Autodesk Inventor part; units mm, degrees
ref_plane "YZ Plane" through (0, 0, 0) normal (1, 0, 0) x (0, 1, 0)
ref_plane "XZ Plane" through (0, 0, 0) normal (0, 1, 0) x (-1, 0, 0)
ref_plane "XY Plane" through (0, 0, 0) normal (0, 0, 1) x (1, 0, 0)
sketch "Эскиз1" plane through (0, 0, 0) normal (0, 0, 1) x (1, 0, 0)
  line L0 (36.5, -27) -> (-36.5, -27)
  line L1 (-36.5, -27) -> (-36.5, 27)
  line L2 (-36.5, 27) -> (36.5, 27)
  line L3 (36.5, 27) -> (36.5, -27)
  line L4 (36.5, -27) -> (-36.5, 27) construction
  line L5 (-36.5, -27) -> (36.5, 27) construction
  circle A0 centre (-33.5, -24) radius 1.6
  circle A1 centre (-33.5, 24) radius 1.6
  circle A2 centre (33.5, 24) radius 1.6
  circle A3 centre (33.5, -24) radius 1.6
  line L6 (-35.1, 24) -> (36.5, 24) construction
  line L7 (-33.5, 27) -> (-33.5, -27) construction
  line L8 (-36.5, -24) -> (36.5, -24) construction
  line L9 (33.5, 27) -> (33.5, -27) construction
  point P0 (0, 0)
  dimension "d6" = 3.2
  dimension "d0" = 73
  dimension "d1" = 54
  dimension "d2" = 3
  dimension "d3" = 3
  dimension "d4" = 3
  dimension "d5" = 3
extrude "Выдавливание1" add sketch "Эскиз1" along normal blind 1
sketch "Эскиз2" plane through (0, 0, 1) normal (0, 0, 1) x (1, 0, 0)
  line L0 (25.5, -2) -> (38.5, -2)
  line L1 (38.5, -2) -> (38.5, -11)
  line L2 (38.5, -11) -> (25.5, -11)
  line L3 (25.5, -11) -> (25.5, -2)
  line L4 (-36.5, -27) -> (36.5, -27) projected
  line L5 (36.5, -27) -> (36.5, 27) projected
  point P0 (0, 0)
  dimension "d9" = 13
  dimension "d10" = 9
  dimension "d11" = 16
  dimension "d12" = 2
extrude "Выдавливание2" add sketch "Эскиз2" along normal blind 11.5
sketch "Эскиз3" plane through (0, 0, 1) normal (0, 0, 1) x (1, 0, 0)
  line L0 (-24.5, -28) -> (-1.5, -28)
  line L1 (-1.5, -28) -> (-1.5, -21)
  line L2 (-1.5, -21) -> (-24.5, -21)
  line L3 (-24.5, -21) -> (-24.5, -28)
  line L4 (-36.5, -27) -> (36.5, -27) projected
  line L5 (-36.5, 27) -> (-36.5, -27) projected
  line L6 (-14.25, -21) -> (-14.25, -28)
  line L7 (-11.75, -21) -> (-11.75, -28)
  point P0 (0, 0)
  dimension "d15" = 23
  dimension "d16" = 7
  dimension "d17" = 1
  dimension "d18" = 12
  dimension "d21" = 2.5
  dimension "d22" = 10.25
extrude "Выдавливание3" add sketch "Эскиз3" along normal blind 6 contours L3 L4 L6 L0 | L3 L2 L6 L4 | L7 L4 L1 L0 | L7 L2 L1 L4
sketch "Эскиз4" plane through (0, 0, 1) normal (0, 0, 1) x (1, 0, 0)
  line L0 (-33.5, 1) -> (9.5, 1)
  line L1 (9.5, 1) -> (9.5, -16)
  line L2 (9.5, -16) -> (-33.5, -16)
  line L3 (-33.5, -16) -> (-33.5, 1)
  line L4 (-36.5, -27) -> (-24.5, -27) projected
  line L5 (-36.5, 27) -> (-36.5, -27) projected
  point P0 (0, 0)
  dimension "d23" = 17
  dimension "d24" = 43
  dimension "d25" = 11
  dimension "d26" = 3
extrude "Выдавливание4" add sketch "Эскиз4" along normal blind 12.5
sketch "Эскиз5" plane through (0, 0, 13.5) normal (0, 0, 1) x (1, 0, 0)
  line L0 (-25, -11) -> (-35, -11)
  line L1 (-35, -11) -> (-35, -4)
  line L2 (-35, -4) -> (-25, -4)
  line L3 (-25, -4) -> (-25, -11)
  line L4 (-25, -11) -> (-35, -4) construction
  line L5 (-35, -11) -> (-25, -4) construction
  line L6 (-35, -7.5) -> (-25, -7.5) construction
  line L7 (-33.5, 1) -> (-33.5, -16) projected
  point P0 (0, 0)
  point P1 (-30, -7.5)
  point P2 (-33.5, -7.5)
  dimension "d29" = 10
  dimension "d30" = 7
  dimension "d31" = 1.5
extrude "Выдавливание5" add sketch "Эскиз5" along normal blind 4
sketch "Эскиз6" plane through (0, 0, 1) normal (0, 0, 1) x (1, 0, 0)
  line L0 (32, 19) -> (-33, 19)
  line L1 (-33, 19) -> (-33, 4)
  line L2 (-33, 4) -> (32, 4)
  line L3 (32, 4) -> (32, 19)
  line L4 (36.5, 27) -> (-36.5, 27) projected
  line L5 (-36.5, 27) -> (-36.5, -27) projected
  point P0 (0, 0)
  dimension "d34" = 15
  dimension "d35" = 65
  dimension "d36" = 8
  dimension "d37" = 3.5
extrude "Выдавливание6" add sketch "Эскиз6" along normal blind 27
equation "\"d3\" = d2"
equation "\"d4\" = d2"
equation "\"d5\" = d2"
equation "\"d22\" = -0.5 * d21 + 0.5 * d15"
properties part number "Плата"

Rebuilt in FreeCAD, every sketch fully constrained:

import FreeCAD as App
import Part
import Sketcher

V = App.Vector

doc = App.newDocument("Part")
body = doc.addObject("PartDesign::Body", "Body")

sketch1 = doc.addObject("Sketcher::SketchObject", "Sketch")
body.addObject(sketch1)
sketch1.AttachmentSupport = (doc.XY_Plane, [""])
sketch1.MapMode = "FlatFace"
sketch1.addGeometry(Part.LineSegment(V(-36.5, -27, 0), V(36.5, -27, 0)), False)
sketch1.addGeometry(Part.LineSegment(V(36.5, -27, 0), V(36.5, 27, 0)), False)
sketch1.addGeometry(Part.LineSegment(V(36.5, 27, 0), V(-36.5, 27, 0)), False)
sketch1.addGeometry(Part.LineSegment(V(-36.5, 27, 0), V(-36.5, -27, 0)), False)
sketch1.addGeometry(Part.Circle(V(-33.5, -24, 0), V(0, 0, 1), 1.6), False)
sketch1.addGeometry(Part.Circle(V(33.5, -24, 0), V(0, 0, 1), 1.6), False)
sketch1.addGeometry(Part.Circle(V(-33.5, 24, 0), V(0, 0, 1), 1.6), False)
sketch1.addGeometry(Part.Circle(V(33.5, 24, 0), V(0, 0, 1), 1.6), False)
sketch1.addConstraint(Sketcher.Constraint("Coincident", 0, 2, 1, 1))
sketch1.addConstraint(Sketcher.Constraint("Coincident", 1, 2, 2, 1))
sketch1.addConstraint(Sketcher.Constraint("Coincident", 2, 2, 3, 1))
sketch1.addConstraint(Sketcher.Constraint("Coincident", 3, 2, 0, 1))
sketch1.addConstraint(Sketcher.Constraint("Horizontal", 0))
sketch1.addConstraint(Sketcher.Constraint("Vertical", 1))
sketch1.addConstraint(Sketcher.Constraint("Horizontal", 2))
sketch1.addConstraint(Sketcher.Constraint("Vertical", 3))
sketch1.addConstraint(Sketcher.Constraint("Equal", 4, 5))
sketch1.addConstraint(Sketcher.Constraint("Equal", 5, 6))
sketch1.addConstraint(Sketcher.Constraint("Equal", 6, 7))
sketch1.addConstraint(Sketcher.Constraint("Symmetric", 5, 3, 6, 3, -1, 1))
sketch1.addConstraint(Sketcher.Constraint("Symmetric", 4, 3, 7, 3, -1, 1))
sketch1.addConstraint(Sketcher.Constraint("Symmetric", 0, 2, 2, 2, -1, 1))
sketch1.addConstraint(Sketcher.Constraint("Symmetric", 4, 3, 5, 3, -2))
sketch1.addConstraint(Sketcher.Constraint("Diameter", 4, 3.2))
sketch1.addConstraint(Sketcher.Constraint("DistanceX", 0, 1, 0, 2, 73.0))
sketch1.addConstraint(Sketcher.Constraint("DistanceY", 1, 1, 1, 2, 54.0))
sketch1.addConstraint(Sketcher.Constraint("DistanceX", 5, 3, 0, 2, 3.0))
sketch1.addConstraint(Sketcher.Constraint("DistanceY", 0, 2, 5, 3, 3.0))
pad1 = doc.addObject("PartDesign::Pad", "Pad")
body.addObject(pad1)
pad1.Profile = sketch1
pad1.Length = 1

sketch2 = doc.addObject("Sketcher::SketchObject", "Sketch001")
body.addObject(sketch2)
sketch2.AttachmentSupport = (doc.XY_Plane, [""])
sketch2.MapMode = "FlatFace"
sketch2.AttachmentOffset = App.Placement(V(0, 0, 1), App.Rotation())
sketch2.addGeometry(Part.LineSegment(V(26, -2, 0), V(26, -11, 0)), False)
sketch2.addGeometry(Part.LineSegment(V(26, -11, 0), V(38, -11, 0)), False)
sketch2.addGeometry(Part.LineSegment(V(38, -11, 0), V(38, -2, 0)), False)
sketch2.addGeometry(Part.LineSegment(V(38, -2, 0), V(26, -2, 0)), False)
sketch2.addConstraint(Sketcher.Constraint("Coincident", 0, 2, 1, 1))
sketch2.addConstraint(Sketcher.Constraint("Coincident", 1, 2, 2, 1))
sketch2.addConstraint(Sketcher.Constraint("Coincident", 2, 2, 3, 1))
sketch2.addConstraint(Sketcher.Constraint("Coincident", 3, 2, 0, 1))
sketch2.addConstraint(Sketcher.Constraint("Vertical", 0))
sketch2.addConstraint(Sketcher.Constraint("Horizontal", 1))
sketch2.addConstraint(Sketcher.Constraint("Vertical", 2))
sketch2.addConstraint(Sketcher.Constraint("Horizontal", 3))
sketch2.addConstraint(Sketcher.Constraint("DistanceX", 1, 1, 1, 2, 13.0))
sketch2.addConstraint(Sketcher.Constraint("DistanceY", 0, 2, 0, 1, 9.0))
sketch2.addConstraint(Sketcher.Constraint("DistanceY", 2, 2, -1, 1, 2.0))
sketch2.addConstraint(Sketcher.Constraint("DistanceX", -1, 1, 0, 2, 25.5))
pad2 = doc.addObject("PartDesign::Pad", "Pad001")
body.addObject(pad2)
pad2.Profile = sketch2
pad2.Length = 11.5

sketch3 = doc.addObject("Sketcher::SketchObject", "Sketch002")
body.addObject(sketch3)
sketch3.AttachmentSupport = (doc.XY_Plane, [""])
sketch3.MapMode = "FlatFace"
sketch3.AttachmentOffset = App.Placement(V(0, 0, 1), App.Rotation())
sketch3.addGeometry(Part.LineSegment(V(-24, -28, 0), V(-14, -28, 0)), False)
sketch3.addGeometry(Part.LineSegment(V(-14, -28, 0), V(-14, -21, 0)), False)
sketch3.addGeometry(Part.LineSegment(V(-14, -21, 0), V(-24, -21, 0)), False)
sketch3.addGeometry(Part.LineSegment(V(-24, -21, 0), V(-24, -28, 0)), False)
sketch3.addGeometry(Part.LineSegment(V(-12, -28, 0), V(-2, -28, 0)), False)
sketch3.addGeometry(Part.LineSegment(V(-2, -28, 0), V(-2, -21, 0)), False)
sketch3.addGeometry(Part.LineSegment(V(-2, -21, 0), V(-12, -21, 0)), False)
sketch3.addGeometry(Part.LineSegment(V(-12, -21, 0), V(-12, -28, 0)), False)
sketch3.addConstraint(Sketcher.Constraint("Coincident", 0, 2, 1, 1))
sketch3.addConstraint(Sketcher.Constraint("Coincident", 1, 2, 2, 1))
sketch3.addConstraint(Sketcher.Constraint("Coincident", 2, 2, 3, 1))
sketch3.addConstraint(Sketcher.Constraint("Coincident", 3, 2, 0, 1))
sketch3.addConstraint(Sketcher.Constraint("Coincident", 4, 2, 5, 1))
sketch3.addConstraint(Sketcher.Constraint("Coincident", 5, 2, 6, 1))
sketch3.addConstraint(Sketcher.Constraint("Coincident", 6, 2, 7, 1))
sketch3.addConstraint(Sketcher.Constraint("Coincident", 7, 2, 4, 1))
sketch3.addConstraint(Sketcher.Constraint("Horizontal", 0))
sketch3.addConstraint(Sketcher.Constraint("Vertical", 1))
sketch3.addConstraint(Sketcher.Constraint("Horizontal", 2))
sketch3.addConstraint(Sketcher.Constraint("Vertical", 3))
sketch3.addConstraint(Sketcher.Constraint("Horizontal", 4))
sketch3.addConstraint(Sketcher.Constraint("Vertical", 5))
sketch3.addConstraint(Sketcher.Constraint("Horizontal", 6))
sketch3.addConstraint(Sketcher.Constraint("Vertical", 7))
sketch3.addConstraint(Sketcher.Constraint("Horizontal", 3, 2, 4, 2))
sketch3.addConstraint(Sketcher.Constraint("Horizontal", 2, 2, 5, 2))
sketch3.addConstraint(Sketcher.Constraint("Equal", 2, 4))
sketch3.addConstraint(Sketcher.Constraint("DistanceY", 1, 1, 1, 2, 7.0))
sketch3.addConstraint(Sketcher.Constraint("DistanceX", 3, 2, 4, 2, 23.0))
sketch3.addConstraint(Sketcher.Constraint("DistanceX", 0, 1, 0, 2, 10.25))
sketch3.addConstraint(Sketcher.Constraint("DistanceY", 0, 2, -1, 1, 28.0))
sketch3.addConstraint(Sketcher.Constraint("DistanceX", 2, 2, -1, 1, 24.5))
pad3 = doc.addObject("PartDesign::Pad", "Pad002")
body.addObject(pad3)
pad3.Profile = sketch3
pad3.Length = 6

sketch4 = doc.addObject("Sketcher::SketchObject", "Sketch003")
body.addObject(sketch4)
sketch4.AttachmentSupport = (doc.XY_Plane, [""])
sketch4.MapMode = "FlatFace"
sketch4.AttachmentOffset = App.Placement(V(0, 0, 1), App.Rotation())
sketch4.addGeometry(Part.LineSegment(V(10, 1, 0), V(-34, 1, 0)), False)
sketch4.addGeometry(Part.LineSegment(V(-34, 1, 0), V(-34, -16, 0)), False)
sketch4.addGeometry(Part.LineSegment(V(-34, -16, 0), V(10, -16, 0)), False)
sketch4.addGeometry(Part.LineSegment(V(10, -16, 0), V(10, 1, 0)), False)
sketch4.addConstraint(Sketcher.Constraint("Coincident", 0, 2, 1, 1))
sketch4.addConstraint(Sketcher.Constraint("Coincident", 1, 2, 2, 1))
sketch4.addConstraint(Sketcher.Constraint("Coincident", 2, 2, 3, 1))
sketch4.addConstraint(Sketcher.Constraint("Coincident", 3, 2, 0, 1))
sketch4.addConstraint(Sketcher.Constraint("Horizontal", 0))
sketch4.addConstraint(Sketcher.Constraint("Vertical", 1))
sketch4.addConstraint(Sketcher.Constraint("Horizontal", 2))
sketch4.addConstraint(Sketcher.Constraint("Vertical", 3))
sketch4.addConstraint(Sketcher.Constraint("DistanceX", 0, 2, 0, 1, 43.0))
sketch4.addConstraint(Sketcher.Constraint("DistanceY", 1, 2, 1, 1, 17.0))
sketch4.addConstraint(Sketcher.Constraint("DistanceY", -1, 1, 0, 2, 1.0))
sketch4.addConstraint(Sketcher.Constraint("DistanceX", 0, 2, -1, 1, 33.5))
pad4 = doc.addObject("PartDesign::Pad", "Pad003")
body.addObject(pad4)
pad4.Profile = sketch4
pad4.Length = 12.5

sketch5 = doc.addObject("Sketcher::SketchObject", "Sketch004")
body.addObject(sketch5)
sketch5.AttachmentSupport = (doc.XY_Plane, [""])
sketch5.MapMode = "FlatFace"
sketch5.AttachmentOffset = App.Placement(V(0, 0, 13.5), App.Rotation())
sketch5.addGeometry(Part.LineSegment(V(-25, -11, 0), V(-25, -4, 0)), False)
sketch5.addGeometry(Part.LineSegment(V(-25, -4, 0), V(-35, -4, 0)), False)
sketch5.addGeometry(Part.LineSegment(V(-35, -4, 0), V(-35, -11, 0)), False)
sketch5.addGeometry(Part.LineSegment(V(-35, -11, 0), V(-25, -11, 0)), False)
sketch5.addConstraint(Sketcher.Constraint("Coincident", 0, 2, 1, 1))
sketch5.addConstraint(Sketcher.Constraint("Coincident", 1, 2, 2, 1))
sketch5.addConstraint(Sketcher.Constraint("Coincident", 2, 2, 3, 1))
sketch5.addConstraint(Sketcher.Constraint("Coincident", 3, 2, 0, 1))
sketch5.addConstraint(Sketcher.Constraint("Vertical", 0))
sketch5.addConstraint(Sketcher.Constraint("Horizontal", 1))
sketch5.addConstraint(Sketcher.Constraint("Vertical", 2))
sketch5.addConstraint(Sketcher.Constraint("Horizontal", 3))
sketch5.addConstraint(Sketcher.Constraint("DistanceX", 1, 2, 1, 1, 10.0))
sketch5.addConstraint(Sketcher.Constraint("DistanceY", 0, 1, 0, 2, 7.0))
sketch5.addConstraint(Sketcher.Constraint("DistanceX", 0, 2, -1, 1, 25.0))
sketch5.addConstraint(Sketcher.Constraint("DistanceY", 0, 2, -1, 1, 4.0))
pad5 = doc.addObject("PartDesign::Pad", "Pad004")
body.addObject(pad5)
pad5.Profile = sketch5
pad5.Length = 4

sketch6 = doc.addObject("Sketcher::SketchObject", "Sketch005")
body.addObject(sketch6)
sketch6.AttachmentSupport = (doc.XY_Plane, [""])
sketch6.MapMode = "FlatFace"
sketch6.AttachmentOffset = App.Placement(V(0, 0, 1), App.Rotation())
sketch6.addGeometry(Part.LineSegment(V(32, 4, 0), V(32, 19, 0)), False)
sketch6.addGeometry(Part.LineSegment(V(32, 19, 0), V(-33, 19, 0)), False)
sketch6.addGeometry(Part.LineSegment(V(-33, 19, 0), V(-33, 4, 0)), False)
sketch6.addGeometry(Part.LineSegment(V(-33, 4, 0), V(32, 4, 0)), False)
sketch6.addConstraint(Sketcher.Constraint("Coincident", 0, 2, 1, 1))
sketch6.addConstraint(Sketcher.Constraint("Coincident", 1, 2, 2, 1))
sketch6.addConstraint(Sketcher.Constraint("Coincident", 2, 2, 3, 1))
sketch6.addConstraint(Sketcher.Constraint("Coincident", 3, 2, 0, 1))
sketch6.addConstraint(Sketcher.Constraint("Vertical", 0))
sketch6.addConstraint(Sketcher.Constraint("Horizontal", 1))
sketch6.addConstraint(Sketcher.Constraint("Vertical", 2))
sketch6.addConstraint(Sketcher.Constraint("Horizontal", 3))
sketch6.addConstraint(Sketcher.Constraint("DistanceX", 1, 2, 1, 1, 65.0))
sketch6.addConstraint(Sketcher.Constraint("DistanceY", 0, 1, 0, 2, 15.0))
sketch6.addConstraint(Sketcher.Constraint("DistanceX", -1, 1, 0, 2, 32.0))
sketch6.addConstraint(Sketcher.Constraint("DistanceY", -1, 1, 0, 2, 19.0))
pad6 = doc.addObject("PartDesign::Pad", "Pad005")
body.addObject(pad6)
pad6.Profile = sketch6
pad6.Length = 27

doc.recompute()
